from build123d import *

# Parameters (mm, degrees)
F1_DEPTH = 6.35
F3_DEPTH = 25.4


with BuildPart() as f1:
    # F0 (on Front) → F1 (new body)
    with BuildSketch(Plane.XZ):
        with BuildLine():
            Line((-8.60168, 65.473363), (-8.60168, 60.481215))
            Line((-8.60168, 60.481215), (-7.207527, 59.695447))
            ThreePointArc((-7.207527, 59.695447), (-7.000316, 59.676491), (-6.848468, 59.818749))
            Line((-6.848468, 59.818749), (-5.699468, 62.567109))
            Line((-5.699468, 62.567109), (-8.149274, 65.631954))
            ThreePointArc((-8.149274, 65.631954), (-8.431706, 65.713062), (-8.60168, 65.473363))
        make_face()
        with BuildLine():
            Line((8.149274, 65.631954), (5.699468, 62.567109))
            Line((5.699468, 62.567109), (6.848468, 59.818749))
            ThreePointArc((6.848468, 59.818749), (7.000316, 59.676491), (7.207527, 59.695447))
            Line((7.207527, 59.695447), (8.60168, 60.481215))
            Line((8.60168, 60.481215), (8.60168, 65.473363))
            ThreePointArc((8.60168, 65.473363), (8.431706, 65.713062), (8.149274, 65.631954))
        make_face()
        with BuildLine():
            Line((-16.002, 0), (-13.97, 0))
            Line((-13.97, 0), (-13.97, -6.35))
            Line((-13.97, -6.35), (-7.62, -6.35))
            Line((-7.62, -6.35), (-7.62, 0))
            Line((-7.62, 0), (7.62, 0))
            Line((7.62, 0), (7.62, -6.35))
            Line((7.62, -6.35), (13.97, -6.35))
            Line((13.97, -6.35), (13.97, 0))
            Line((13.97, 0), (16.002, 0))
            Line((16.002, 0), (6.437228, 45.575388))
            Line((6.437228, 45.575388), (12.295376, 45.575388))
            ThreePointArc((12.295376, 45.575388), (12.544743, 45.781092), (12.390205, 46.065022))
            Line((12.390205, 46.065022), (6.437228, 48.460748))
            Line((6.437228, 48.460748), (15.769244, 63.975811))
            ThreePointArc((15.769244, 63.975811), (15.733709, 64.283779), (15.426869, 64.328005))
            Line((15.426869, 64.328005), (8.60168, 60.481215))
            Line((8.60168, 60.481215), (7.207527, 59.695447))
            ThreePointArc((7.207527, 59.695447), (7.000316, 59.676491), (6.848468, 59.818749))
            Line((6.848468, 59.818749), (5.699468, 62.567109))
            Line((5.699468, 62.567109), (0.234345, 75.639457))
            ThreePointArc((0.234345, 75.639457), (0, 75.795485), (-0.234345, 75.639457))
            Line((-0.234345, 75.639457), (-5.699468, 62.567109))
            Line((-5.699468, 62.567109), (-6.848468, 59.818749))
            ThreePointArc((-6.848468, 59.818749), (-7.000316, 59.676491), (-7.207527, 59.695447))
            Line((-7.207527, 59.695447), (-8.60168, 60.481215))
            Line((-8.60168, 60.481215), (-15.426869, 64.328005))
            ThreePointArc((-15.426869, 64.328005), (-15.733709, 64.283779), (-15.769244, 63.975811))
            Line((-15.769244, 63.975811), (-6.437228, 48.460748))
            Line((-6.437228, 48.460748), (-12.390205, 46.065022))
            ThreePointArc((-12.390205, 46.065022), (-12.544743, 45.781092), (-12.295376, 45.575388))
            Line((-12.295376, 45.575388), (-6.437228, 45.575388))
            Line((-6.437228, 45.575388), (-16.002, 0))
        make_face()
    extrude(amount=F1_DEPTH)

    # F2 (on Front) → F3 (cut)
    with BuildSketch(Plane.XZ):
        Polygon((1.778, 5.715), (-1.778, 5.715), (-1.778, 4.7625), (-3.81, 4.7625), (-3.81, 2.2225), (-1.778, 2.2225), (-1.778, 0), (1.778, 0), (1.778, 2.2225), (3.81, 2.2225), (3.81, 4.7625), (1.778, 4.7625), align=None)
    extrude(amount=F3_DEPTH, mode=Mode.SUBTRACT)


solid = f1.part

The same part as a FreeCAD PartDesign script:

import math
import FreeCAD as App
import Part
import Sketcher
Q = App.Units.Quantity

doc = App.newDocument("Part")
body = doc.addObject("PartDesign::Body", "Body")

# Sketch on XZ plane
sketch1 = doc.addObject("Sketcher::SketchObject", "Sketch")
body.addObject(sketch1)
sketch1.AttachmentSupport = (doc.XZ_Plane, [""])
sketch1.MapMode = "FlatFace"
sketch1.addGeometry(Part.LineSegment(App.Vector(-8.60168, 65.473363, 0), App.Vector(-8.60168, 60.481215, 0)), False)
sketch1.addGeometry(Part.LineSegment(App.Vector(-8.60168, 60.481215, 0), App.Vector(-15.426869, 64.328005, 0)), False)
sketch1.addGeometry(Part.ArcOfCircle(Part.Circle(App.Vector(-15.551583, 64.10673, 0), App.Vector(0, 0, 1), 0.254), math.radians(60.593684), math.radians(211.026168)), False)
sketch1.addGeometry(Part.LineSegment(App.Vector(-15.769244, 63.975811, 0), App.Vector(-6.437228, 48.460748, 0)), False)
sketch1.addGeometry(Part.LineSegment(App.Vector(-6.437228, 48.460748, 0), App.Vector(-12.390205, 46.065022, 0)), False)
sketch1.addGeometry(Part.ArcOfCircle(Part.Circle(App.Vector(-12.295377, 45.829388, 0), App.Vector(0, 0, 1), 0.254), math.radians(111.921679), math.radians(270.000235)), False)
sketch1.addGeometry(Part.LineSegment(App.Vector(-12.295376, 45.575388, 0), App.Vector(-6.437228, 45.575388, 0)), False)
sketch1.addGeometry(Part.LineSegment(App.Vector(-6.437228, 45.575388, 0), App.Vector(-16.002, 0, 0)), False)
sketch1.addGeometry(Part.LineSegment(App.Vector(-16.002, 0, 0), App.Vector(-13.97, 0, 0)), False)
sketch1.addGeometry(Part.LineSegment(App.Vector(-13.97, 0, 0), App.Vector(-13.97, -6.35, 0)), False)
sketch1.addGeometry(Part.LineSegment(App.Vector(-13.97, -6.35, 0), App.Vector(-7.62, -6.35, 0)), False)
sketch1.addGeometry(Part.LineSegment(App.Vector(-7.62, -6.35, 0), App.Vector(-7.62, 0, 0)), False)
sketch1.addGeometry(Part.LineSegment(App.Vector(-7.62, 0, 0), App.Vector(7.62, 0, 0)), False)
sketch1.addGeometry(Part.LineSegment(App.Vector(7.62, 0, 0), App.Vector(7.62, -6.35, 0)), False)
sketch1.addGeometry(Part.LineSegment(App.Vector(7.62, -6.35, 0), App.Vector(13.97, -6.35, 0)), False)
sketch1.addGeometry(Part.LineSegment(App.Vector(13.97, -6.35, 0), App.Vector(13.97, 0, 0)), False)
sketch1.addGeometry(Part.LineSegment(App.Vector(13.97, 0, 0), App.Vector(16.002, 0, 0)), False)
sketch1.addGeometry(Part.LineSegment(App.Vector(16.002, 0, 0), App.Vector(6.437228, 45.575388, 0)), False)
sketch1.addGeometry(Part.LineSegment(App.Vector(6.437228, 45.575388, 0), App.Vector(12.295376, 45.575388, 0)), False)
sketch1.addGeometry(Part.ArcOfCircle(Part.Circle(App.Vector(12.295377, 45.829388, 0), App.Vector(0, 0, 1), 0.254), math.radians(-90.000235), math.radians(68.078321)), False)
sketch1.addGeometry(Part.LineSegment(App.Vector(12.390205, 46.065022, 0), App.Vector(6.437228, 48.460748, 0)), False)
sketch1.addGeometry(Part.LineSegment(App.Vector(6.437228, 48.460748, 0), App.Vector(15.769244, 63.975811, 0)), False)
sketch1.addGeometry(Part.ArcOfCircle(Part.Circle(App.Vector(15.551583, 64.10673, 0), App.Vector(0, 0, 1), 0.254), math.radians(-31.026168), math.radians(119.406316)), False)
sketch1.addGeometry(Part.LineSegment(App.Vector(15.426869, 64.328005, 0), App.Vector(8.60168, 60.481215, 0)), False)
sketch1.addGeometry(Part.LineSegment(App.Vector(8.60168, 60.481215, 0), App.Vector(8.60168, 65.473363, 0)), False)
sketch1.addGeometry(Part.ArcOfCircle(Part.Circle(App.Vector(8.34768, 65.473363, 0), App.Vector(0, 0, 1), 0.254), math.radians(0.000024), math.radians(141.363729)), False)
sketch1.addGeometry(Part.LineSegment(App.Vector(8.149274, 65.631954, 0), App.Vector(5.699468, 62.567109, 0)), False)
sketch1.addGeometry(Part.LineSegment(App.Vector(5.699468, 62.567109, 0), App.Vector(0.234345, 75.639457, 0)), False)
sketch1.addGeometry(Part.ArcOfCircle(Part.Circle(App.Vector(0, 75.541485, 0), App.Vector(0, 0, 1), 0.254), math.radians(22.688275), math.radians(157.311725)), False)
sketch1.addGeometry(Part.LineSegment(App.Vector(-0.234345, 75.639457, 0), App.Vector(-5.699468, 62.567109, 0)), False)
sketch1.addGeometry(Part.LineSegment(App.Vector(-5.699468, 62.567109, 0), App.Vector(-8.149274, 65.631954, 0)), False)
sketch1.addGeometry(Part.ArcOfCircle(Part.Circle(App.Vector(-8.34768, 65.473363, 0), App.Vector(0, 0, 1), 0.254), math.radians(38.636271), math.radians(179.999976)), False)
sketch1.addConstraint(Sketcher.Constraint("Coincident", 0, 2, 1, 1))
sketch1.addConstraint(Sketcher.Constraint("Coincident", 1, 2, 2, 1))
sketch1.addConstraint(Sketcher.Constraint("Coincident", 2, 2, 3, 1))
sketch1.addConstraint(Sketcher.Constraint("Coincident", 3, 2, 4, 1))
sketch1.addConstraint(Sketcher.Constraint("Coincident", 4, 2, 5, 1))
sketch1.addConstraint(Sketcher.Constraint("Coincident", 5, 2, 6, 1))
sketch1.addConstraint(Sketcher.Constraint("Coincident", 6, 2, 7, 1))
sketch1.addConstraint(Sketcher.Constraint("Coincident", 7, 2, 8, 1))
sketch1.addConstraint(Sketcher.Constraint("Coincident", 8, 2, 9, 1))
sketch1.addConstraint(Sketcher.Constraint("Coincident", 9, 2, 10, 1))
sketch1.addConstraint(Sketcher.Constraint("Coincident", 10, 2, 11, 1))
sketch1.addConstraint(Sketcher.Constraint("Coincident", 11, 2, 12, 1))
sketch1.addConstraint(Sketcher.Constraint("Coincident", 12, 2, 13, 1))
sketch1.addConstraint(Sketcher.Constraint("Coincident", 13, 2, 14, 1))
sketch1.addConstraint(Sketcher.Constraint("Coincident", 14, 2, 15, 1))
sketch1.addConstraint(Sketcher.Constraint("Coincident", 15, 2, 16, 1))
sketch1.addConstraint(Sketcher.Constraint("Coincident", 16, 2, 17, 1))
sketch1.addConstraint(Sketcher.Constraint("Coincident", 17, 2, 18, 1))
sketch1.addConstraint(Sketcher.Constraint("Coincident", 18, 2, 19, 1))
sketch1.addConstraint(Sketcher.Constraint("Coincident", 19, 2, 20, 1))
sketch1.addConstraint(Sketcher.Constraint("Coincident", 20, 2, 21, 1))
sketch1.addConstraint(Sketcher.Constraint("Coincident", 21, 2, 22, 1))
sketch1.addConstraint(Sketcher.Constraint("Coincident", 22, 2, 23, 1))
sketch1.addConstraint(Sketcher.Constraint("Coincident", 23, 2, 24, 1))
sketch1.addConstraint(Sketcher.Constraint("Coincident", 24, 2, 25, 1))
sketch1.addConstraint(Sketcher.Constraint("Coincident", 25, 2, 26, 1))
sketch1.addConstraint(Sketcher.Constraint("Coincident", 26, 2, 27, 1))
sketch1.addConstraint(Sketcher.Constraint("Coincident", 27, 2, 28, 1))
sketch1.addConstraint(Sketcher.Constraint("Coincident", 28, 2, 29, 1))
sketch1.addConstraint(Sketcher.Constraint("Coincident", 29, 2, 30, 1))
sketch1.addConstraint(Sketcher.Constraint("Coincident", 30, 2, 31, 1))
sketch1.addConstraint(Sketcher.Constraint("Coincident", 31, 2, 0, 1))
sketch1.addConstraint(Sketcher.Constraint("Vertical", 0))
sketch1.addConstraint(Sketcher.Constraint("Horizontal", 6))
sketch1.addConstraint(Sketcher.Constraint("Horizontal", 8))
sketch1.addConstraint(Sketcher.Constraint("Vertical", 9))
sketch1.addConstraint(Sketcher.Constraint("Horizontal", 10))
sketch1.addConstraint(Sketcher.Constraint("Vertical", 11))
sketch1.addConstraint(Sketcher.Constraint("Horizontal", 12))
sketch1.addConstraint(Sketcher.Constraint("Vertical", 13))
sketch1.addConstraint(Sketcher.Constraint("Horizontal", 14))
sketch1.addConstraint(Sketcher.Constraint("Vertical", 15))
sketch1.addConstraint(Sketcher.Constraint("Horizontal", 16))
sketch1.addConstraint(Sketcher.Constraint("Horizontal", 18))
sketch1.addConstraint(Sketcher.Constraint("Vertical", 24))
sketch1.addConstraint(Sketcher.Constraint("PointOnObject", 28, 3, -2))
sketch1.addConstraint(Sketcher.Constraint("PointOnObject", 7, 2, -1))
sketch1.addConstraint(Sketcher.Constraint("PointOnObject", 11, 2, -1))
sketch1.addConstraint(Sketcher.Constraint("PointOnObject", 15, 2, -1))
sketch1.addConstraint(Sketcher.Constraint("Radius", 2, Q("0.01 in")))
sketch1.addConstraint(Sketcher.Constraint("Radius", 5, Q("0.01 in")))
sketch1.addConstraint(Sketcher.Constraint("Radius", 19, Q("0.01 in")))
sketch1.addConstraint(Sketcher.Constraint("Radius", 22, Q("0.01 in")))
sketch1.addConstraint(Sketcher.Constraint("Radius", 25, Q("0.01 in")))
sketch1.addConstraint(Sketcher.Constraint("Radius", 28, Q("0.01 in")))
sketch1.addConstraint(Sketcher.Constraint("Radius", 31, Q("0.01 in")))
sketch1.addConstraint(Sketcher.Constraint("DistanceX", 12, 1, 12, 2, Q("0.6 in")))
sketch1.addConstraint(Sketcher.Constraint("DistanceX", 8, 1, 8, 2, Q("0.08 in")))
sketch1.addConstraint(Sketcher.Constraint("DistanceX", 10, 1, 10, 2, Q("0.25 in")))
sketch1.addConstraint(Sketcher.Constraint("DistanceX", 14, 1, 14, 2, Q("0.25 in")))
sketch1.addConstraint(Sketcher.Constraint("DistanceX", 16, 1, 16, 2, Q("0.08 in")))
sketch1.addConstraint(Sketcher.Constraint("DistanceY", 9, 2, 9, 1, Q("0.25 in")))
sketch1.addConstraint(Sketcher.Constraint("DistanceY", 13, 2, 13, 1, Q("0.25 in")))
sketch1.addConstraint(Sketcher.Constraint("DistanceX", 10, 2, -1, 1, Q("0.3 in")))
sketch1.addConstraint(Sketcher.Constraint("DistanceY", 17, 2, 5, 3, Q("0.01 in")))
sketch1.addConstraint(Sketcher.Constraint("DistanceY", 0, 2, 0, 1, 4.992148))
sketch1.addConstraint(Sketcher.Constraint("DistanceY", 24, 1, 24, 2, 4.992148))
sketch1.addConstraint(Sketcher.Constraint("DistanceX", 26, 2, 22, 2, 9.727401))
sketch1.addConstraint(Sketcher.Constraint("DistanceX", 1, 2, 29, 2, 9.727401))
sketch1.addConstraint(Sketcher.Constraint("Distance", 3, 18.10535))
sketch1.addConstraint(Sketcher.Constraint("Distance", 7, 46.568239))
sketch1.addConstraint(Sketcher.Constraint("Distance", 17, 46.568239))
sketch1.addConstraint(Sketcher.Constraint("Distance", 21, 18.10535))
sketch1.addConstraint(Sketcher.Constraint("DistanceX", 6, 1, 6, 2, 5.858148))
sketch1.addConstraint(Sketcher.Constraint("DistanceX", 18, 1, 18, 2, 5.858148))
sketch1.addConstraint(Sketcher.Constraint("DistanceY", -1, 1, 2, 3, 64.10673))
sketch1.addConstraint(Sketcher.Constraint("DistanceY", -1, 1, 22, 3, 64.10673))
sketch1.addConstraint(Sketcher.Constraint("DistanceX", -1, 1, 25, 3, 8.34768))
sketch1.addConstraint(Sketcher.Constraint("DistanceX", 31, 3, -1, 1, 8.34768))
sketch1.addConstraint(Sketcher.Constraint("DistanceX", 1, 2, -1, 1, 15.426869))
sketch1.addConstraint(Sketcher.Constraint("DistanceY", -1, 1, 2, 2, 63.975811))
sketch1.addConstraint(Sketcher.Constraint("DistanceX", 3, 2, -1, 1, 6.437228))
sketch1.addConstraint(Sketcher.Constraint("DistanceY", -1, 1, 3, 2, 48.460748))
sketch1.addConstraint(Sketcher.Constraint("DistanceY", -1, 1, 5, 2, 45.575388))
sketch1.addConstraint(Sketcher.Constraint("DistanceY", -1, 1, 19, 2, 46.065022))
sketch1.addConstraint(Sketcher.Constraint("DistanceX", -1, 1, 20, 2, 6.437228))
sketch1.addConstraint(Sketcher.Constraint("DistanceY", -1, 1, 20, 2, 48.460748))
sketch1.addConstraint(Sketcher.Constraint("DistanceY", -1, 1, 21, 2, 63.975811))
sketch1.addConstraint(Sketcher.Constraint("DistanceX", -1, 1, 22, 2, 15.426869))
sketch1.addConstraint(Sketcher.Constraint("DistanceY", -1, 1, 26, 2, 62.567109))
sketch1.addConstraint(Sketcher.Constraint("DistanceY", -1, 1, 29, 2, 62.567109))
sketch1.addConstraint(Sketcher.Constraint("DistanceX", 2, 3, 19, 3, 27.84696))
sketch1.addConstraint(Sketcher.Constraint("DistanceX", 5, 3, 22, 3, 27.84696))
sketch1.addConstraint(Sketcher.Constraint("DistanceY", 25, 3, 28, 3, 10.068122))
sketch1.addConstraint(Sketcher.Constraint("DistanceY", 31, 3, 28, 3, 10.068122))
sketch1.addConstraint(Sketcher.Constraint("DistanceY", 0, 2, 28, 3, 15.06027))
sketch1.addConstraint(Sketcher.Constraint("DistanceY", 0, 2, 1, 2, 3.84679))
sketch1.addConstraint(Sketcher.Constraint("DistanceX", 2, 2, 4, 2, 3.379039))
sketch1.addConstraint(Sketcher.Constraint("DistanceY", 23, 2, 22, 2, 3.84679))
sketch1.addConstraint(Sketcher.Constraint("DistanceY", 25, 3, 25, 2, 0.158591))
sketch1.addConstraint(Sketcher.Constraint("DistanceX", 27, 2, 25, 2, 7.914929))
sketch1.addConstraint(Sketcher.Constraint("DistanceX", 28, 2, 27, 2, 0.46869))
sketch1.addConstraint(Sketcher.Constraint("DistanceY", 31, 3, 30, 2, 0.158591))
pad1 = doc.addObject("PartDesign::Pad", "Pad")
body.addObject(pad1)
pad1.Profile = sketch1
pad1.Length = Q("0.25 in")

# Sketch on XZ plane
sketch2 = doc.addObject("Sketcher::SketchObject", "Sketch001")
body.addObject(sketch2)
sketch2.AttachmentSupport = (doc.XZ_Plane, [""])
sketch2.MapMode = "FlatFace"
sketch2.addGeometry(Part.LineSegment(App.Vector(1.8, 5.7, 0), App.Vector(-1.8, 5.7, 0)), False)
sketch2.addGeometry(Part.LineSegment(App.Vector(-1.8, 5.7, 0), App.Vector(-1.8, 4.8, 0)), False)
sketch2.addGeometry(Part.LineSegment(App.Vector(-1.8, 4.8, 0), App.Vector(-3.8, 4.8, 0)), False)
sketch2.addGeometry(Part.LineSegment(App.Vector(-3.8, 4.8, 0), App.Vector(-3.8, 2.2, 0)), False)
sketch2.addGeometry(Part.LineSegment(App.Vector(-3.8, 2.2, 0), App.Vector(-1.8, 2.2, 0)), False)
sketch2.addGeometry(Part.LineSegment(App.Vector(-1.8, 2.2, 0), App.Vector(-1.8, 0, 0)), False)
sketch2.addGeometry(Part.LineSegment(App.Vector(-1.8, 0, 0), App.Vector(1.8, 0, 0)), False)
sketch2.addGeometry(Part.LineSegment(App.Vector(1.8, 0, 0), App.Vector(1.8, 2.2, 0)), False)
sketch2.addGeometry(Part.LineSegment(App.Vector(1.8, 2.2, 0), App.Vector(3.8, 2.2, 0)), False)
sketch2.addGeometry(Part.LineSegment(App.Vector(3.8, 2.2, 0), App.Vector(3.8, 4.8, 0)), False)
sketch2.addGeometry(Part.LineSegment(App.Vector(3.8, 4.8, 0), App.Vector(1.8, 4.8, 0)), False)
sketch2.addGeometry(Part.LineSegment(App.Vector(1.8, 4.8, 0), App.Vector(1.8, 5.7, 0)), False)
sketch2.addConstraint(Sketcher.Constraint("Coincident", 0, 2, 1, 1))
sketch2.addConstraint(Sketcher.Constraint("Coincident", 1, 2, 2, 1))
sketch2.addConstraint(Sketcher.Constraint("Coincident", 2, 2, 3, 1))
sketch2.addConstraint(Sketcher.Constraint("Coincident", 3, 2, 4, 1))
sketch2.addConstraint(Sketcher.Constraint("Coincident", 4, 2, 5, 1))
sketch2.addConstraint(Sketcher.Constraint("Coincident", 5, 2, 6, 1))
sketch2.addConstraint(Sketcher.Constraint("Coincident", 6, 2, 7, 1))
sketch2.addConstraint(Sketcher.Constraint("Coincident", 7, 2, 8, 1))
sketch2.addConstraint(Sketcher.Constraint("Coincident", 8, 2, 9, 1))
sketch2.addConstraint(Sketcher.Constraint("Coincident", 9, 2, 10, 1))
sketch2.addConstraint(Sketcher.Constraint("Coincident", 10, 2, 11, 1))
sketch2.addConstraint(Sketcher.Constraint("Coincident", 11, 2, 0, 1))
sketch2.addConstraint(Sketcher.Constraint("Horizontal", 0))
sketch2.addConstraint(Sketcher.Constraint("Vertical", 1))
sketch2.addConstraint(Sketcher.Constraint("Horizontal", 2))
sketch2.addConstraint(Sketcher.Constraint("Vertical", 3))
sketch2.addConstraint(Sketcher.Constraint("Horizontal", 4))
sketch2.addConstraint(Sketcher.Constraint("Vertical", 5))
sketch2.addConstraint(Sketcher.Constraint("Horizontal", 6))
sketch2.addConstraint(Sketcher.Constraint("Vertical", 7))
sketch2.addConstraint(Sketcher.Constraint("Horizontal", 8))
sketch2.addConstraint(Sketcher.Constraint("Vertical", 9))
sketch2.addConstraint(Sketcher.Constraint("Horizontal", 10))
sketch2.addConstraint(Sketcher.Constraint("Vertical", 11))
sketch2.addConstraint(Sketcher.Constraint("Symmetric", 5, 2, 6, 2, -1, 1))
sketch2.addConstraint(Sketcher.Constraint("Symmetric", 3, 2, 8, 2, -2))
sketch2.addConstraint(Sketcher.Constraint("Symmetric", 1, 2, 10, 2, -2))
sketch2.addConstraint(Sketcher.Constraint("Vertical", 1, 2, 4, 2))
sketch2.addConstraint(Sketcher.Constraint("DistanceY", 3, 2, 3, 1, Q("0.1 in")))
sketch2.addConstraint(Sketcher.Constraint("DistanceX", 0, 2, 0, 1, Q("0.14 in")))
sketch2.addConstraint(Sketcher.Constraint("DistanceX", 2, 2, 2, 1, Q("0.08 in")))
sketch2.addConstraint(Sketcher.Constraint("DistanceY", 1, 2, 1, 1, Q("0.0375 in")))
sketch2.addConstraint(Sketcher.Constraint("DistanceY", 5, 2, 5, 1, Q("0.0875 in")))
pocket1 = doc.addObject("PartDesign::Pocket", "Pocket")
body.addObject(pocket1)
pocket1.Profile = sketch2
pocket1.Length = Q("1 in")
pocket1.Reversed = True

doc.recompute()
